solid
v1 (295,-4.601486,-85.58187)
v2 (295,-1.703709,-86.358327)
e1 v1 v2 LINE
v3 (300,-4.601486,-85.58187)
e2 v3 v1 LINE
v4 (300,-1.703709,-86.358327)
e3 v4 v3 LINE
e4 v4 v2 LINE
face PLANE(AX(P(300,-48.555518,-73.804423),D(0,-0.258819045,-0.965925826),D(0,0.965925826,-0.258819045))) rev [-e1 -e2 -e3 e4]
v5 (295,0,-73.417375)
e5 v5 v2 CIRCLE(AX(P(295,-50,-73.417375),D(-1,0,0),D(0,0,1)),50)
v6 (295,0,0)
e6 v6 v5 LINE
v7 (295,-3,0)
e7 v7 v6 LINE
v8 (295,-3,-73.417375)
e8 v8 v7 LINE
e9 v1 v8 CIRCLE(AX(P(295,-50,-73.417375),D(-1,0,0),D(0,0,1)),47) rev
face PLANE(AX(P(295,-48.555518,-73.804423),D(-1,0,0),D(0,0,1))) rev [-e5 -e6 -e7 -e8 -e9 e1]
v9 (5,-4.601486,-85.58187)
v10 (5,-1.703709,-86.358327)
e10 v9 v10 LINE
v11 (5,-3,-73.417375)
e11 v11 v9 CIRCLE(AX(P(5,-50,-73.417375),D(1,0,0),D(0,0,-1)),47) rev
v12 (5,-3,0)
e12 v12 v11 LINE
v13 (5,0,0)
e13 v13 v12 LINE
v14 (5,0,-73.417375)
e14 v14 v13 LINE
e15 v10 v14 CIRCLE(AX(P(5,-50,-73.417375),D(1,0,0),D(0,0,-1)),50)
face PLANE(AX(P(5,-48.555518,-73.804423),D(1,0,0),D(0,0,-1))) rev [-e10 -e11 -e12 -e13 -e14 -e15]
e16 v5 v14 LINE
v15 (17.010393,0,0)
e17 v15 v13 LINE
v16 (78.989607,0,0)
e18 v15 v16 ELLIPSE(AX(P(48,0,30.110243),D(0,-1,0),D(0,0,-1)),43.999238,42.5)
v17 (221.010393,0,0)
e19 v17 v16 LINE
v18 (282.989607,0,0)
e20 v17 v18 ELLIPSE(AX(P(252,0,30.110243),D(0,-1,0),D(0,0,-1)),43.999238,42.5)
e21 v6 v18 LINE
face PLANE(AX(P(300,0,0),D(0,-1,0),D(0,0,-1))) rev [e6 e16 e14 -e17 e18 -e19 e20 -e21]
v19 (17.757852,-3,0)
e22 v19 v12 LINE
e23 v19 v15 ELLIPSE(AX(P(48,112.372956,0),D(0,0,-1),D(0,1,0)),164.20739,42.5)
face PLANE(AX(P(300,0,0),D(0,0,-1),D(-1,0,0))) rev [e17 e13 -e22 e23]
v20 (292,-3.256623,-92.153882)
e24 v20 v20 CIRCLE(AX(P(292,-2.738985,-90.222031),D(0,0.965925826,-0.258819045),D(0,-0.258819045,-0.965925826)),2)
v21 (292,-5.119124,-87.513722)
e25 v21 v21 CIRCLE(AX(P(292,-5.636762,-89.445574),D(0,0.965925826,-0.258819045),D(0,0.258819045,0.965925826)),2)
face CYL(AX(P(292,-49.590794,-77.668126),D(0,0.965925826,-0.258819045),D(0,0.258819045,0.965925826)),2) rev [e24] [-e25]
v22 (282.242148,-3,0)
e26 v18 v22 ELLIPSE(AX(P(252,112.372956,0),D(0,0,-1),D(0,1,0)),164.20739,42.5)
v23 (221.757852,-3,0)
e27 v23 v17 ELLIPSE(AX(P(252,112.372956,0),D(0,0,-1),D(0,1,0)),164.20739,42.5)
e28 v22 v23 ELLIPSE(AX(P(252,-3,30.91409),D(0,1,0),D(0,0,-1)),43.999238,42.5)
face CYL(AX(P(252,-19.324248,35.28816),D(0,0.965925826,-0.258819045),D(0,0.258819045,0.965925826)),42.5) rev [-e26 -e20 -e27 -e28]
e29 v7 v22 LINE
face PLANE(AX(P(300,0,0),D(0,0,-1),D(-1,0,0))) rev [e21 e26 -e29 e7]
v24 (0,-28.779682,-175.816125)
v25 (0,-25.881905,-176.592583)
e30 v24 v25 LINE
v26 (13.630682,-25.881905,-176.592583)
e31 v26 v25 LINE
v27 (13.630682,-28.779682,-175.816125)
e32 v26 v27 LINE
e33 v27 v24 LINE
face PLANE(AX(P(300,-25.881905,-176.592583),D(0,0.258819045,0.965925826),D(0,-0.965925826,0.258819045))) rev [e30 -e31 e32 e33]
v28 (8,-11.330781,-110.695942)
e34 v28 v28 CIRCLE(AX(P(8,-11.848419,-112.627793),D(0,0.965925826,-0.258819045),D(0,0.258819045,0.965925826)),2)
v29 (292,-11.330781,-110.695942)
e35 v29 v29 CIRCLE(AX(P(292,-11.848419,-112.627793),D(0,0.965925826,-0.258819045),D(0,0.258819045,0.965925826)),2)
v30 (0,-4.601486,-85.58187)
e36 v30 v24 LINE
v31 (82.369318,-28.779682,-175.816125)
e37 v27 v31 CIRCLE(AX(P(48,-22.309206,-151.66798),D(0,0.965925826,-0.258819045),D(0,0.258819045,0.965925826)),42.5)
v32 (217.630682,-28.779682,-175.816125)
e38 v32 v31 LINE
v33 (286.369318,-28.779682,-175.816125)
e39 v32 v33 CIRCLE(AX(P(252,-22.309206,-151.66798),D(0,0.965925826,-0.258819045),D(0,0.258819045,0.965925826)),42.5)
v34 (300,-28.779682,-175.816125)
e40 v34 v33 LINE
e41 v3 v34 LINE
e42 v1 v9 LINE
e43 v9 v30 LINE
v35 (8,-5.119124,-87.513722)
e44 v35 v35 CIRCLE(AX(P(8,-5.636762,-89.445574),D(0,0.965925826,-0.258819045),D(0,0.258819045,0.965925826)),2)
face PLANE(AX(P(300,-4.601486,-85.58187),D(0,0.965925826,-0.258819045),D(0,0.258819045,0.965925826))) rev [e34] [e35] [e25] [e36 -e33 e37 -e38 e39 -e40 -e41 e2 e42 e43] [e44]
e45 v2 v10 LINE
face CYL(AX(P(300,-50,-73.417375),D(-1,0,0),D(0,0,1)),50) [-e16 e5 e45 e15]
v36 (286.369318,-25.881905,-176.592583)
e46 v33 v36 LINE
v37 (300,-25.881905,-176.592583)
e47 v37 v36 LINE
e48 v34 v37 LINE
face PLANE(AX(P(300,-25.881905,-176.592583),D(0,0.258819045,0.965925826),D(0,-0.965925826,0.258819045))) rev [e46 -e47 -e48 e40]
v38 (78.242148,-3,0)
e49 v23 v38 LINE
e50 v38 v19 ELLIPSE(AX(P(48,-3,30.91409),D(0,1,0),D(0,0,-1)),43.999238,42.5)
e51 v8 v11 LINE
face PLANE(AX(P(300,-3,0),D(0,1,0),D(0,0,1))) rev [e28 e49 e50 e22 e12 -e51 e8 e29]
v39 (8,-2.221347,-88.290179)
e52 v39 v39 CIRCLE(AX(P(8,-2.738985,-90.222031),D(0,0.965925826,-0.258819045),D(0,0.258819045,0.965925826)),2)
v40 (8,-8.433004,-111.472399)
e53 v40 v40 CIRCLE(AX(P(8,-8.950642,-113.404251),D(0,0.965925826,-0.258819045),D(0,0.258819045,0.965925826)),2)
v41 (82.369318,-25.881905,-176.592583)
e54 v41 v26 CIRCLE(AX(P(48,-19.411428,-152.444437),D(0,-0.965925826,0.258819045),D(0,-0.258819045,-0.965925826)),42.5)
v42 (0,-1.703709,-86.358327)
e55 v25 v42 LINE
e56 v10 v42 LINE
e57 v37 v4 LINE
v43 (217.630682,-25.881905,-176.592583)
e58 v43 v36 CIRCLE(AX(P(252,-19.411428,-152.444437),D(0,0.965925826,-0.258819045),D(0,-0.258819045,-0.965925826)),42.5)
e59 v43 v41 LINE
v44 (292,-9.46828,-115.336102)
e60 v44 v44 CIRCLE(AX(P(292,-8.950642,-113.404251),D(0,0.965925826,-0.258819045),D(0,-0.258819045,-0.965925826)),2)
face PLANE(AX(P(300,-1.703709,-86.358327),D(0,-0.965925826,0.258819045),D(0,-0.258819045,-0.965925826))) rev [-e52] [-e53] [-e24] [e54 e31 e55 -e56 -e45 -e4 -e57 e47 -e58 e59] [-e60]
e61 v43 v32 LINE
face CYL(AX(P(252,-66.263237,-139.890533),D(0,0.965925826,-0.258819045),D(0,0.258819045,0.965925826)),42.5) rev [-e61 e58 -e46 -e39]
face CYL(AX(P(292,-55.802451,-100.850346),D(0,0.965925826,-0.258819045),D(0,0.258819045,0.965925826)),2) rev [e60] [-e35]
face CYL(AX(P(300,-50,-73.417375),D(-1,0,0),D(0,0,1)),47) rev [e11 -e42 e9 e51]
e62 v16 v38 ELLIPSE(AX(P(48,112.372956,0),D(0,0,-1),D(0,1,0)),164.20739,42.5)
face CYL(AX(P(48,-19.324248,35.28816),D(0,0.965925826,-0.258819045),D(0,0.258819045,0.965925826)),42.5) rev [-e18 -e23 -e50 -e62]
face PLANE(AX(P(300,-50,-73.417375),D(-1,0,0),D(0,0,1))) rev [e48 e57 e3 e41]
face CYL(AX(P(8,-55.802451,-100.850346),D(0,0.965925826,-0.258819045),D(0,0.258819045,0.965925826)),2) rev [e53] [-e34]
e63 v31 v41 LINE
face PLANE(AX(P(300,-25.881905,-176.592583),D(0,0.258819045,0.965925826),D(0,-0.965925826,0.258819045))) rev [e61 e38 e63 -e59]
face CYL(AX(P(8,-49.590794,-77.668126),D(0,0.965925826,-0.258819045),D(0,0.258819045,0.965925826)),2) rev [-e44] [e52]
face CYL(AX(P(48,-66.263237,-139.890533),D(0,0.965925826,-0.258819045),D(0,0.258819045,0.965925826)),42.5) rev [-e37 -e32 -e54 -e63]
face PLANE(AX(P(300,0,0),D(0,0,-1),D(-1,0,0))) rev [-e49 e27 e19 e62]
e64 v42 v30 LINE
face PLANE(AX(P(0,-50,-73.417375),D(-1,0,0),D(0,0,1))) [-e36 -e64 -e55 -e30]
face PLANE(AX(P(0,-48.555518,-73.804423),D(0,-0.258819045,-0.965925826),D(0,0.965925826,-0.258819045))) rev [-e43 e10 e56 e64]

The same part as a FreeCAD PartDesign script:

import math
import FreeCAD as App
import Part
import Sketcher
from FreeCAD import Vector
Q = App.Units.Quantity

doc = App.newDocument("Part")
params = doc.addObject("Spreadsheet::Sheet", "Params")
for row, (alias, value) in enumerate([
    ("sketch1_radius", "47 mm"),
    ("sketch1_radius2", "50 mm"),
    ("pad1_length", "300 mm"),
    ("sketch2_diameter", "85 mm"),
    ("sketch2_width", "5 mm"),
    ("sketch3_diameter", "4 mm"),
], start=1):
    params.set(f"A{row}", alias)
    params.set(f"B{row}", "=" + value)
    params.setAlias(f"B{row}", alias)

body = doc.addObject("PartDesign::Body", "Body")

# Sketch on YZ plane
sketch1 = body.newObject("Sketcher::SketchObject", "Sketch")
sketch1.AttachmentSupport = (doc.getObject("YZ_Plane"), [""])
sketch1.MapMode = "FlatFace"
sketch1.addGeometry([
    Part.LineSegment(Vector(0, -73.4, 0), Vector(0, 0, 0)),  # 0
    Part.LineSegment(Vector(0, 0, 0), Vector(-3, 0, 0)),  # 1
    Part.LineSegment(Vector(-3, 0, 0), Vector(-3, -73.4, 0)),  # 2
    Part.ArcOfCircle(Part.Circle(Vector(-50, -73.4, 0), Vector(0, 0, 1), 47), math.radians(-15), math.radians(0)),  # 3
    Part.LineSegment(Vector(-4.6, -85.6, 0), Vector(-28.8, -175.8, 0)),  # 4
    Part.LineSegment(Vector(-28.8, -175.8, 0), Vector(-25.9, -176.6, 0)),  # 5
    Part.LineSegment(Vector(-25.9, -176.6, 0), Vector(-1.7, -86.4, 0)),  # 6
    Part.ArcOfCircle(Part.Circle(Vector(-50, -73.4, 0), Vector(0, 0, 1), 50), math.radians(-15), math.radians(0)),  # 7
], False)
sketch1.addConstraint([
    Sketcher.Constraint("Coincident", 0, 2, 1, 1),
    Sketcher.Constraint("Coincident", 1, 2, 2, 1),
    Sketcher.Constraint("Tangent", 2, 2, 3, 2),
    Sketcher.Constraint("Tangent", 3, 1, 4, 1),
    Sketcher.Constraint("Coincident", 4, 2, 5, 1),
    Sketcher.Constraint("Coincident", 5, 2, 6, 1),
    Sketcher.Constraint("Tangent", 6, 2, 7, 1),
    Sketcher.Constraint("Tangent", 7, 2, 0, 1),
    Sketcher.Constraint("Vertical", 0),
    Sketcher.Constraint("Horizontal", 1),
    Sketcher.Constraint("Vertical", 2),
    Sketcher.Constraint("Coincident", 0, 2, -1, 1),
    Sketcher.Constraint("Coincident", 7, 3, 3, 3),
    Sketcher.Constraint("Perpendicular", 4, 5),
    Sketcher.Constraint("Perpendicular", 5, 6),
    Sketcher.Constraint("Radius", 3, 47.0),
    Sketcher.Constraint("Radius", 7, 50.0),
    Sketcher.Constraint("Angle", 4, Q("-105 deg")),
    Sketcher.Constraint("DistanceY", 0, 1, 0, 2, 73.417375),
    Sketcher.Constraint("DistanceX", 4, 2, -1, 1, 28.779682),
])
sketch1.setExpression("Constraints[15]", "Params.sketch1_radius")
sketch1.setExpression("Constraints[16]", "Params.sketch1_radius2")
pad1 = body.newObject("PartDesign::Pad", "Pad")
pad1.Profile = sketch1
pad1.setExpression("Length", "Params.pad1_length")

# Sketch on an angled plane
sketch2 = body.newObject("Sketcher::SketchObject", "Sketch001")
sketch2.Placement = App.Placement(Vector(0, 20, -5.358984), App.Rotation(Vector(1, 0, 0), Vector(0, -0.258819045, -0.965925826), Vector(0, 0.965925826, -0.258819045), "ZXY"))
sketch2.addGeometry([
    Part.Circle(Vector(48, 152, 0), Vector(0, 0, 1), 42),  # 0
    Part.Circle(Vector(252, 152, 0), Vector(0, 0, 1), 42),  # 1
    Part.Circle(Vector(48, -29, 0), Vector(0, 0, 1), 42),  # 2
    Part.Circle(Vector(252, -29, 0), Vector(0, 0, 1), 42),  # 3
    Part.LineSegment(Vector(0, 84, 0), Vector(0, 0, 0)),  # 4
    Part.LineSegment(Vector(0, 0, 0), Vector(5, 0, 0)),  # 5
    Part.LineSegment(Vector(5, 0, 0), Vector(5, 84, 0)),  # 6
    Part.LineSegment(Vector(5, 84, 0), Vector(0, 84, 0)),  # 7
    Part.LineSegment(Vector(295, 84, 0), Vector(295, 0, 0)),  # 8
    Part.LineSegment(Vector(295, 0, 0), Vector(300, 0, 0)),  # 9
    Part.LineSegment(Vector(300, 0, 0), Vector(300, 84, 0)),  # 10
    Part.LineSegment(Vector(300, 84, 0), Vector(295, 84, 0)),  # 11
], False)
sketch2.addConstraint([
    Sketcher.Constraint("Coincident", 4, 2, 5, 1),
    Sketcher.Constraint("Coincident", 5, 2, 6, 1),
    Sketcher.Constraint("Coincident", 6, 2, 7, 1),
    Sketcher.Constraint("Coincident", 7, 2, 4, 1),
    Sketcher.Constraint("Coincident", 8, 2, 9, 1),
    Sketcher.Constraint("Coincident", 9, 2, 10, 1),
    Sketcher.Constraint("Coincident", 10, 2, 11, 1),
    Sketcher.Constraint("Coincident", 11, 2, 8, 1),
    Sketcher.Constraint("Vertical", 4),
    Sketcher.Constraint("Horizontal", 5),
    Sketcher.Constraint("Vertical", 6),
    Sketcher.Constraint("Horizontal", 7),
    Sketcher.Constraint("Vertical", 8),
    Sketcher.Constraint("Horizontal", 9),
    Sketcher.Constraint("Vertical", 10),
    Sketcher.Constraint("Horizontal", 11),
    Sketcher.Constraint("Coincident", 4, 2, -1, 1),
    Sketcher.Constraint("Equal", 0, 1),
    Sketcher.Constraint("Equal", 1, 2),
    Sketcher.Constraint("Equal", 2, 3),
    Sketcher.Constraint("PointOnObject", 8, 2, -1),
    Sketcher.Constraint("Horizontal", 0, 3, 1, 3),
    Sketcher.Constraint("Horizontal", 2, 3, 3, 3),
    Sketcher.Constraint("Horizontal", 7, 2, 10, 2),
    Sketcher.Constraint("Vertical", 0, 3, 2, 3),
    Sketcher.Constraint("Vertical", 1, 3, 3, 3),
    Sketcher.Constraint("Equal", 7, 9),
    Sketcher.Constraint("Diameter", 0, 85.0),
    Sketcher.Constraint("DistanceX", 5, 1, 5, 2, 5.0),
    Sketcher.Constraint("DistanceX", -1, 1, 0, 3, 48.0),
    Sketcher.Constraint("DistanceX", -1, 1, 1, 3, 252.0),
    Sketcher.Constraint("DistanceX", -1, 1, 8, 2, 295.0),
    Sketcher.Constraint("DistanceY", 4, 2, 4, 1, 83.856691),
    Sketcher.Constraint("DistanceY", 2, 3, -1, 1, 29.084261),
    Sketcher.Constraint("DistanceY", -1, 1, 0, 3, 152.274066),
])
sketch2.setExpression("Constraints[27]", "Params.sketch2_diameter")
sketch2.setExpression("Constraints[28]", "Params.sketch2_width")
pocket1 = body.newObject("PartDesign::Pocket", "Pocket")
pocket1.Profile = sketch2
pocket1.Type = "ThroughAll"

# Sketch on an angled plane
sketch3 = body.newObject("Sketcher::SketchObject", "Sketch002")
sketch3.Placement = App.Placement(Vector(0, 20, -5.358984), App.Rotation(Vector(1, 0, 0), Vector(0, -0.258819045, -0.965925826), Vector(0, 0.965925826, -0.258819045), "ZXY"))
sketch3.addGeometry([
    Part.Circle(Vector(8, 87.9, 0), Vector(0, 0, 1), 2),
    Part.Circle(Vector(8, 111.9, 0), Vector(0, 0, 1), 2),
    Part.Circle(Vector(292, 87.9, 0), Vector(0, 0, 1), 2),
    Part.Circle(Vector(292, 111.9, 0), Vector(0, 0, 1), 2),
], False)
sketch3.addConstraint([
    Sketcher.Constraint("Equal", 0, 1),
    Sketcher.Constraint("Equal", 1, 2),
    Sketcher.Constraint("Equal", 2, 3),
    Sketcher.Constraint("Horizontal", 0, 3, 2, 3),
    Sketcher.Constraint("Horizontal", 1, 3, 3, 3),
    Sketcher.Constraint("Vertical", 0, 3, 1, 3),
    Sketcher.Constraint("Vertical", 2, 3, 3, 3),
    Sketcher.Constraint("Diameter", 0, 4.0),
    Sketcher.Constraint("DistanceX", -1, 1, 0, 3, 8.0),
    Sketcher.Constraint("DistanceX", -1, 1, 2, 3, 292.0),
    Sketcher.Constraint("DistanceY", 0, 3, 1, 3, 24.0),
    Sketcher.Constraint("DistanceY", -1, 1, 0, 3, 87.856691),
])
sketch3.setExpression("Constraints[7]", "Params.sketch3_diameter")
pocket2 = body.newObject("PartDesign::Pocket", "Pocket001")
pocket2.Profile = sketch3
pocket2.Type = "ThroughAll"

doc.recompute()
